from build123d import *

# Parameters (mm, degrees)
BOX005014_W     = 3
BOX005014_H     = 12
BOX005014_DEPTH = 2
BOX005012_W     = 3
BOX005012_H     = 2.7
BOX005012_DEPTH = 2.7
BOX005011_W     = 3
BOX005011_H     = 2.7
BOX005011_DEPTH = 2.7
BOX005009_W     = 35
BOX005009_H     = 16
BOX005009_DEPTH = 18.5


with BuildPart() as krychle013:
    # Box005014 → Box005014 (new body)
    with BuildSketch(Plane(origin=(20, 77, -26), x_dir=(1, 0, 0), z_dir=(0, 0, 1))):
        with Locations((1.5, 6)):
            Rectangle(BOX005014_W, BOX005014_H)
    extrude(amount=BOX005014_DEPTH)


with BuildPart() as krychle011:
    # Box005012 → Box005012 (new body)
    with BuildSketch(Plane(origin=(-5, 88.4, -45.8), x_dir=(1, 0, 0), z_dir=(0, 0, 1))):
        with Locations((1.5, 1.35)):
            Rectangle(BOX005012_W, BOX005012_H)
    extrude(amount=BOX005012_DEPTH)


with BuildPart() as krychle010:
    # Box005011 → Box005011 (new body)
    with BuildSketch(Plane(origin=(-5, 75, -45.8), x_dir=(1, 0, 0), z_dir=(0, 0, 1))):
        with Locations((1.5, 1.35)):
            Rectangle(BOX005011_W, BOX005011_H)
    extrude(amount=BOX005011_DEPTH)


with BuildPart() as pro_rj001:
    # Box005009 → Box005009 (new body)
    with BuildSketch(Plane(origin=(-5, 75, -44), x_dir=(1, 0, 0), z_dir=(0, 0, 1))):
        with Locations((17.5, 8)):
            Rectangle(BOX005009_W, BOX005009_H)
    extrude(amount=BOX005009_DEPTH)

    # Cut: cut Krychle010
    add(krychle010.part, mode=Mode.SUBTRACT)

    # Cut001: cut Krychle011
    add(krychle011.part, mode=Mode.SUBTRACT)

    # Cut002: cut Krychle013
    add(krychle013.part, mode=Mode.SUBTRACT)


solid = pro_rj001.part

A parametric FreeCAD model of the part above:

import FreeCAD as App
import Part
import Sketcher

V = App.Vector


def add_polygon(sketch, points):
    """Adds a closed chain of lines whose ends are joined by coincident constraints."""
    first, n = sketch.GeometryCount, len(points)
    for a, b in zip(points, points[1:] + points[:1]):
        sketch.addGeometry(Part.LineSegment(App.Vector(*a, 0), App.Vector(*b, 0)), False)
    for i in range(n):
        sketch.addConstraint(Sketcher.Constraint("Coincident", first + i, 2, first + (i + 1) % n, 1))

doc = App.newDocument("Part")
body = doc.addObject("PartDesign::Body", "Body")

# Sketch on XY plane
sketch1 = body.newObject("Sketcher::SketchObject", "Sketch")
sketch1.AttachmentSupport = (doc.getObject("XY_Plane"), [""])
sketch1.MapMode = "FlatFace"
sketch1.AttachmentOffset = App.Placement(V(0, 0, -26), App.Rotation())
add_polygon(sketch1, [(20, 89), (20, 77), (23, 77), (23, 89)])  # lines 0-3
sketch1.addConstraint(Sketcher.Constraint("Vertical", 0))
sketch1.addConstraint(Sketcher.Constraint("Horizontal", 1))
sketch1.addConstraint(Sketcher.Constraint("Vertical", 2))
sketch1.addConstraint(Sketcher.Constraint("Horizontal", 3))
sketch1.addConstraint(Sketcher.Constraint("DistanceX", 1, 1, 1, 2, 3.0))
sketch1.addConstraint(Sketcher.Constraint("DistanceY", 0, 2, 0, 1, 12.0))
sketch1.addConstraint(Sketcher.Constraint("DistanceX", -1, 1, 0, 2, 20.0))
sketch1.addConstraint(Sketcher.Constraint("DistanceY", -1, 1, 0, 2, 77.0))
pad1 = body.newObject("PartDesign::Pad", "Pad")
pad1.Profile = sketch1
pad1.Length = 2
body2 = doc.addObject("PartDesign::Body", "Body001")

# Sketch on XY plane
sketch2 = body2.newObject("Sketcher::SketchObject", "Sketch001")
sketch2.AttachmentSupport = (doc.getObject("XY_Plane001"), [""])
sketch2.MapMode = "FlatFace"
sketch2.AttachmentOffset = App.Placement(V(0, 0, -45.8), App.Rotation())
add_polygon(sketch2, [(-5, 91.1), (-5, 88.4), (-2, 88.4), (-2, 91.1)])  # lines 0-3
sketch2.addConstraint(Sketcher.Constraint("Vertical", 0))
sketch2.addConstraint(Sketcher.Constraint("Horizontal", 1))
sketch2.addConstraint(Sketcher.Constraint("Vertical", 2))
sketch2.addConstraint(Sketcher.Constraint("Horizontal", 3))
sketch2.addConstraint(Sketcher.Constraint("DistanceX", 1, 1, 1, 2, 3.0))
sketch2.addConstraint(Sketcher.Constraint("DistanceY", 0, 2, 0, 1, 2.7))
sketch2.addConstraint(Sketcher.Constraint("DistanceX", 0, 2, -1, 1, 5.0))
sketch2.addConstraint(Sketcher.Constraint("DistanceY", -1, 1, 0, 2, 88.4))
pad2 = body2.newObject("PartDesign::Pad", "Pad001")
pad2.Profile = sketch2
pad2.Length = 2.7
body3 = doc.addObject("PartDesign::Body", "Body002")

# Sketch on XY plane
sketch3 = body3.newObject("Sketcher::SketchObject", "Sketch002")
sketch3.AttachmentSupport = (doc.getObject("XY_Plane002"), [""])
sketch3.MapMode = "FlatFace"
sketch3.AttachmentOffset = App.Placement(V(0, 0, -45.8), App.Rotation())
add_polygon(sketch3, [(-5, 77.7), (-5, 75), (-2, 75), (-2, 77.7)])  # lines 0-3
sketch3.addConstraint(Sketcher.Constraint("Vertical", 0))
sketch3.addConstraint(Sketcher.Constraint("Horizontal", 1))
sketch3.addConstraint(Sketcher.Constraint("Vertical", 2))
sketch3.addConstraint(Sketcher.Constraint("Horizontal", 3))
sketch3.addConstraint(Sketcher.Constraint("DistanceX", 1, 1, 1, 2, 3.0))
sketch3.addConstraint(Sketcher.Constraint("DistanceY", 0, 2, 0, 1, 2.7))
sketch3.addConstraint(Sketcher.Constraint("DistanceX", 0, 2, -1, 1, 5.0))
sketch3.addConstraint(Sketcher.Constraint("DistanceY", -1, 1, 0, 2, 75.0))
pad3 = body3.newObject("PartDesign::Pad", "Pad002")
pad3.Profile = sketch3
pad3.Length = 2.7
body4 = doc.addObject("PartDesign::Body", "Body003")

# Sketch on XY plane
sketch4 = body4.newObject("Sketcher::SketchObject", "Sketch003")
sketch4.AttachmentSupport = (doc.getObject("XY_Plane003"), [""])
sketch4.MapMode = "FlatFace"
sketch4.AttachmentOffset = App.Placement(V(0, 0, -44), App.Rotation())
add_polygon(sketch4, [(-5, 91), (-5, 75), (30, 75), (30, 91)])  # lines 0-3
sketch4.addConstraint(Sketcher.Constraint("Vertical", 0))
sketch4.addConstraint(Sketcher.Constraint("Horizontal", 1))
sketch4.addConstraint(Sketcher.Constraint("Vertical", 2))
sketch4.addConstraint(Sketcher.Constraint("Horizontal", 3))
sketch4.addConstraint(Sketcher.Constraint("DistanceX", 1, 1, 1, 2, 35.0))
sketch4.addConstraint(Sketcher.Constraint("DistanceY", 0, 2, 0, 1, 16.0))
sketch4.addConstraint(Sketcher.Constraint("DistanceX", 0, 2, -1, 1, 5.0))
sketch4.addConstraint(Sketcher.Constraint("DistanceY", -1, 1, 0, 2, 75.0))
pad4 = body4.newObject("PartDesign::Pad", "Pad003")
pad4.Profile = sketch4
pad4.Length = 18.5
doc.recompute()

boolean = body4.newObject("PartDesign::Boolean", "Boolean")
boolean.Type = "Cut"
boolean.addObjects([body3])
doc.recompute()

boolean2 = body4.newObject("PartDesign::Boolean", "Boolean001")
boolean2.Type = "Cut"
boolean2.addObjects([body2])
doc.recompute()

boolean3 = body4.newObject("PartDesign::Boolean", "Boolean002")
boolean3.Type = "Cut"
boolean3.addObjects([body])

doc.recompute()
